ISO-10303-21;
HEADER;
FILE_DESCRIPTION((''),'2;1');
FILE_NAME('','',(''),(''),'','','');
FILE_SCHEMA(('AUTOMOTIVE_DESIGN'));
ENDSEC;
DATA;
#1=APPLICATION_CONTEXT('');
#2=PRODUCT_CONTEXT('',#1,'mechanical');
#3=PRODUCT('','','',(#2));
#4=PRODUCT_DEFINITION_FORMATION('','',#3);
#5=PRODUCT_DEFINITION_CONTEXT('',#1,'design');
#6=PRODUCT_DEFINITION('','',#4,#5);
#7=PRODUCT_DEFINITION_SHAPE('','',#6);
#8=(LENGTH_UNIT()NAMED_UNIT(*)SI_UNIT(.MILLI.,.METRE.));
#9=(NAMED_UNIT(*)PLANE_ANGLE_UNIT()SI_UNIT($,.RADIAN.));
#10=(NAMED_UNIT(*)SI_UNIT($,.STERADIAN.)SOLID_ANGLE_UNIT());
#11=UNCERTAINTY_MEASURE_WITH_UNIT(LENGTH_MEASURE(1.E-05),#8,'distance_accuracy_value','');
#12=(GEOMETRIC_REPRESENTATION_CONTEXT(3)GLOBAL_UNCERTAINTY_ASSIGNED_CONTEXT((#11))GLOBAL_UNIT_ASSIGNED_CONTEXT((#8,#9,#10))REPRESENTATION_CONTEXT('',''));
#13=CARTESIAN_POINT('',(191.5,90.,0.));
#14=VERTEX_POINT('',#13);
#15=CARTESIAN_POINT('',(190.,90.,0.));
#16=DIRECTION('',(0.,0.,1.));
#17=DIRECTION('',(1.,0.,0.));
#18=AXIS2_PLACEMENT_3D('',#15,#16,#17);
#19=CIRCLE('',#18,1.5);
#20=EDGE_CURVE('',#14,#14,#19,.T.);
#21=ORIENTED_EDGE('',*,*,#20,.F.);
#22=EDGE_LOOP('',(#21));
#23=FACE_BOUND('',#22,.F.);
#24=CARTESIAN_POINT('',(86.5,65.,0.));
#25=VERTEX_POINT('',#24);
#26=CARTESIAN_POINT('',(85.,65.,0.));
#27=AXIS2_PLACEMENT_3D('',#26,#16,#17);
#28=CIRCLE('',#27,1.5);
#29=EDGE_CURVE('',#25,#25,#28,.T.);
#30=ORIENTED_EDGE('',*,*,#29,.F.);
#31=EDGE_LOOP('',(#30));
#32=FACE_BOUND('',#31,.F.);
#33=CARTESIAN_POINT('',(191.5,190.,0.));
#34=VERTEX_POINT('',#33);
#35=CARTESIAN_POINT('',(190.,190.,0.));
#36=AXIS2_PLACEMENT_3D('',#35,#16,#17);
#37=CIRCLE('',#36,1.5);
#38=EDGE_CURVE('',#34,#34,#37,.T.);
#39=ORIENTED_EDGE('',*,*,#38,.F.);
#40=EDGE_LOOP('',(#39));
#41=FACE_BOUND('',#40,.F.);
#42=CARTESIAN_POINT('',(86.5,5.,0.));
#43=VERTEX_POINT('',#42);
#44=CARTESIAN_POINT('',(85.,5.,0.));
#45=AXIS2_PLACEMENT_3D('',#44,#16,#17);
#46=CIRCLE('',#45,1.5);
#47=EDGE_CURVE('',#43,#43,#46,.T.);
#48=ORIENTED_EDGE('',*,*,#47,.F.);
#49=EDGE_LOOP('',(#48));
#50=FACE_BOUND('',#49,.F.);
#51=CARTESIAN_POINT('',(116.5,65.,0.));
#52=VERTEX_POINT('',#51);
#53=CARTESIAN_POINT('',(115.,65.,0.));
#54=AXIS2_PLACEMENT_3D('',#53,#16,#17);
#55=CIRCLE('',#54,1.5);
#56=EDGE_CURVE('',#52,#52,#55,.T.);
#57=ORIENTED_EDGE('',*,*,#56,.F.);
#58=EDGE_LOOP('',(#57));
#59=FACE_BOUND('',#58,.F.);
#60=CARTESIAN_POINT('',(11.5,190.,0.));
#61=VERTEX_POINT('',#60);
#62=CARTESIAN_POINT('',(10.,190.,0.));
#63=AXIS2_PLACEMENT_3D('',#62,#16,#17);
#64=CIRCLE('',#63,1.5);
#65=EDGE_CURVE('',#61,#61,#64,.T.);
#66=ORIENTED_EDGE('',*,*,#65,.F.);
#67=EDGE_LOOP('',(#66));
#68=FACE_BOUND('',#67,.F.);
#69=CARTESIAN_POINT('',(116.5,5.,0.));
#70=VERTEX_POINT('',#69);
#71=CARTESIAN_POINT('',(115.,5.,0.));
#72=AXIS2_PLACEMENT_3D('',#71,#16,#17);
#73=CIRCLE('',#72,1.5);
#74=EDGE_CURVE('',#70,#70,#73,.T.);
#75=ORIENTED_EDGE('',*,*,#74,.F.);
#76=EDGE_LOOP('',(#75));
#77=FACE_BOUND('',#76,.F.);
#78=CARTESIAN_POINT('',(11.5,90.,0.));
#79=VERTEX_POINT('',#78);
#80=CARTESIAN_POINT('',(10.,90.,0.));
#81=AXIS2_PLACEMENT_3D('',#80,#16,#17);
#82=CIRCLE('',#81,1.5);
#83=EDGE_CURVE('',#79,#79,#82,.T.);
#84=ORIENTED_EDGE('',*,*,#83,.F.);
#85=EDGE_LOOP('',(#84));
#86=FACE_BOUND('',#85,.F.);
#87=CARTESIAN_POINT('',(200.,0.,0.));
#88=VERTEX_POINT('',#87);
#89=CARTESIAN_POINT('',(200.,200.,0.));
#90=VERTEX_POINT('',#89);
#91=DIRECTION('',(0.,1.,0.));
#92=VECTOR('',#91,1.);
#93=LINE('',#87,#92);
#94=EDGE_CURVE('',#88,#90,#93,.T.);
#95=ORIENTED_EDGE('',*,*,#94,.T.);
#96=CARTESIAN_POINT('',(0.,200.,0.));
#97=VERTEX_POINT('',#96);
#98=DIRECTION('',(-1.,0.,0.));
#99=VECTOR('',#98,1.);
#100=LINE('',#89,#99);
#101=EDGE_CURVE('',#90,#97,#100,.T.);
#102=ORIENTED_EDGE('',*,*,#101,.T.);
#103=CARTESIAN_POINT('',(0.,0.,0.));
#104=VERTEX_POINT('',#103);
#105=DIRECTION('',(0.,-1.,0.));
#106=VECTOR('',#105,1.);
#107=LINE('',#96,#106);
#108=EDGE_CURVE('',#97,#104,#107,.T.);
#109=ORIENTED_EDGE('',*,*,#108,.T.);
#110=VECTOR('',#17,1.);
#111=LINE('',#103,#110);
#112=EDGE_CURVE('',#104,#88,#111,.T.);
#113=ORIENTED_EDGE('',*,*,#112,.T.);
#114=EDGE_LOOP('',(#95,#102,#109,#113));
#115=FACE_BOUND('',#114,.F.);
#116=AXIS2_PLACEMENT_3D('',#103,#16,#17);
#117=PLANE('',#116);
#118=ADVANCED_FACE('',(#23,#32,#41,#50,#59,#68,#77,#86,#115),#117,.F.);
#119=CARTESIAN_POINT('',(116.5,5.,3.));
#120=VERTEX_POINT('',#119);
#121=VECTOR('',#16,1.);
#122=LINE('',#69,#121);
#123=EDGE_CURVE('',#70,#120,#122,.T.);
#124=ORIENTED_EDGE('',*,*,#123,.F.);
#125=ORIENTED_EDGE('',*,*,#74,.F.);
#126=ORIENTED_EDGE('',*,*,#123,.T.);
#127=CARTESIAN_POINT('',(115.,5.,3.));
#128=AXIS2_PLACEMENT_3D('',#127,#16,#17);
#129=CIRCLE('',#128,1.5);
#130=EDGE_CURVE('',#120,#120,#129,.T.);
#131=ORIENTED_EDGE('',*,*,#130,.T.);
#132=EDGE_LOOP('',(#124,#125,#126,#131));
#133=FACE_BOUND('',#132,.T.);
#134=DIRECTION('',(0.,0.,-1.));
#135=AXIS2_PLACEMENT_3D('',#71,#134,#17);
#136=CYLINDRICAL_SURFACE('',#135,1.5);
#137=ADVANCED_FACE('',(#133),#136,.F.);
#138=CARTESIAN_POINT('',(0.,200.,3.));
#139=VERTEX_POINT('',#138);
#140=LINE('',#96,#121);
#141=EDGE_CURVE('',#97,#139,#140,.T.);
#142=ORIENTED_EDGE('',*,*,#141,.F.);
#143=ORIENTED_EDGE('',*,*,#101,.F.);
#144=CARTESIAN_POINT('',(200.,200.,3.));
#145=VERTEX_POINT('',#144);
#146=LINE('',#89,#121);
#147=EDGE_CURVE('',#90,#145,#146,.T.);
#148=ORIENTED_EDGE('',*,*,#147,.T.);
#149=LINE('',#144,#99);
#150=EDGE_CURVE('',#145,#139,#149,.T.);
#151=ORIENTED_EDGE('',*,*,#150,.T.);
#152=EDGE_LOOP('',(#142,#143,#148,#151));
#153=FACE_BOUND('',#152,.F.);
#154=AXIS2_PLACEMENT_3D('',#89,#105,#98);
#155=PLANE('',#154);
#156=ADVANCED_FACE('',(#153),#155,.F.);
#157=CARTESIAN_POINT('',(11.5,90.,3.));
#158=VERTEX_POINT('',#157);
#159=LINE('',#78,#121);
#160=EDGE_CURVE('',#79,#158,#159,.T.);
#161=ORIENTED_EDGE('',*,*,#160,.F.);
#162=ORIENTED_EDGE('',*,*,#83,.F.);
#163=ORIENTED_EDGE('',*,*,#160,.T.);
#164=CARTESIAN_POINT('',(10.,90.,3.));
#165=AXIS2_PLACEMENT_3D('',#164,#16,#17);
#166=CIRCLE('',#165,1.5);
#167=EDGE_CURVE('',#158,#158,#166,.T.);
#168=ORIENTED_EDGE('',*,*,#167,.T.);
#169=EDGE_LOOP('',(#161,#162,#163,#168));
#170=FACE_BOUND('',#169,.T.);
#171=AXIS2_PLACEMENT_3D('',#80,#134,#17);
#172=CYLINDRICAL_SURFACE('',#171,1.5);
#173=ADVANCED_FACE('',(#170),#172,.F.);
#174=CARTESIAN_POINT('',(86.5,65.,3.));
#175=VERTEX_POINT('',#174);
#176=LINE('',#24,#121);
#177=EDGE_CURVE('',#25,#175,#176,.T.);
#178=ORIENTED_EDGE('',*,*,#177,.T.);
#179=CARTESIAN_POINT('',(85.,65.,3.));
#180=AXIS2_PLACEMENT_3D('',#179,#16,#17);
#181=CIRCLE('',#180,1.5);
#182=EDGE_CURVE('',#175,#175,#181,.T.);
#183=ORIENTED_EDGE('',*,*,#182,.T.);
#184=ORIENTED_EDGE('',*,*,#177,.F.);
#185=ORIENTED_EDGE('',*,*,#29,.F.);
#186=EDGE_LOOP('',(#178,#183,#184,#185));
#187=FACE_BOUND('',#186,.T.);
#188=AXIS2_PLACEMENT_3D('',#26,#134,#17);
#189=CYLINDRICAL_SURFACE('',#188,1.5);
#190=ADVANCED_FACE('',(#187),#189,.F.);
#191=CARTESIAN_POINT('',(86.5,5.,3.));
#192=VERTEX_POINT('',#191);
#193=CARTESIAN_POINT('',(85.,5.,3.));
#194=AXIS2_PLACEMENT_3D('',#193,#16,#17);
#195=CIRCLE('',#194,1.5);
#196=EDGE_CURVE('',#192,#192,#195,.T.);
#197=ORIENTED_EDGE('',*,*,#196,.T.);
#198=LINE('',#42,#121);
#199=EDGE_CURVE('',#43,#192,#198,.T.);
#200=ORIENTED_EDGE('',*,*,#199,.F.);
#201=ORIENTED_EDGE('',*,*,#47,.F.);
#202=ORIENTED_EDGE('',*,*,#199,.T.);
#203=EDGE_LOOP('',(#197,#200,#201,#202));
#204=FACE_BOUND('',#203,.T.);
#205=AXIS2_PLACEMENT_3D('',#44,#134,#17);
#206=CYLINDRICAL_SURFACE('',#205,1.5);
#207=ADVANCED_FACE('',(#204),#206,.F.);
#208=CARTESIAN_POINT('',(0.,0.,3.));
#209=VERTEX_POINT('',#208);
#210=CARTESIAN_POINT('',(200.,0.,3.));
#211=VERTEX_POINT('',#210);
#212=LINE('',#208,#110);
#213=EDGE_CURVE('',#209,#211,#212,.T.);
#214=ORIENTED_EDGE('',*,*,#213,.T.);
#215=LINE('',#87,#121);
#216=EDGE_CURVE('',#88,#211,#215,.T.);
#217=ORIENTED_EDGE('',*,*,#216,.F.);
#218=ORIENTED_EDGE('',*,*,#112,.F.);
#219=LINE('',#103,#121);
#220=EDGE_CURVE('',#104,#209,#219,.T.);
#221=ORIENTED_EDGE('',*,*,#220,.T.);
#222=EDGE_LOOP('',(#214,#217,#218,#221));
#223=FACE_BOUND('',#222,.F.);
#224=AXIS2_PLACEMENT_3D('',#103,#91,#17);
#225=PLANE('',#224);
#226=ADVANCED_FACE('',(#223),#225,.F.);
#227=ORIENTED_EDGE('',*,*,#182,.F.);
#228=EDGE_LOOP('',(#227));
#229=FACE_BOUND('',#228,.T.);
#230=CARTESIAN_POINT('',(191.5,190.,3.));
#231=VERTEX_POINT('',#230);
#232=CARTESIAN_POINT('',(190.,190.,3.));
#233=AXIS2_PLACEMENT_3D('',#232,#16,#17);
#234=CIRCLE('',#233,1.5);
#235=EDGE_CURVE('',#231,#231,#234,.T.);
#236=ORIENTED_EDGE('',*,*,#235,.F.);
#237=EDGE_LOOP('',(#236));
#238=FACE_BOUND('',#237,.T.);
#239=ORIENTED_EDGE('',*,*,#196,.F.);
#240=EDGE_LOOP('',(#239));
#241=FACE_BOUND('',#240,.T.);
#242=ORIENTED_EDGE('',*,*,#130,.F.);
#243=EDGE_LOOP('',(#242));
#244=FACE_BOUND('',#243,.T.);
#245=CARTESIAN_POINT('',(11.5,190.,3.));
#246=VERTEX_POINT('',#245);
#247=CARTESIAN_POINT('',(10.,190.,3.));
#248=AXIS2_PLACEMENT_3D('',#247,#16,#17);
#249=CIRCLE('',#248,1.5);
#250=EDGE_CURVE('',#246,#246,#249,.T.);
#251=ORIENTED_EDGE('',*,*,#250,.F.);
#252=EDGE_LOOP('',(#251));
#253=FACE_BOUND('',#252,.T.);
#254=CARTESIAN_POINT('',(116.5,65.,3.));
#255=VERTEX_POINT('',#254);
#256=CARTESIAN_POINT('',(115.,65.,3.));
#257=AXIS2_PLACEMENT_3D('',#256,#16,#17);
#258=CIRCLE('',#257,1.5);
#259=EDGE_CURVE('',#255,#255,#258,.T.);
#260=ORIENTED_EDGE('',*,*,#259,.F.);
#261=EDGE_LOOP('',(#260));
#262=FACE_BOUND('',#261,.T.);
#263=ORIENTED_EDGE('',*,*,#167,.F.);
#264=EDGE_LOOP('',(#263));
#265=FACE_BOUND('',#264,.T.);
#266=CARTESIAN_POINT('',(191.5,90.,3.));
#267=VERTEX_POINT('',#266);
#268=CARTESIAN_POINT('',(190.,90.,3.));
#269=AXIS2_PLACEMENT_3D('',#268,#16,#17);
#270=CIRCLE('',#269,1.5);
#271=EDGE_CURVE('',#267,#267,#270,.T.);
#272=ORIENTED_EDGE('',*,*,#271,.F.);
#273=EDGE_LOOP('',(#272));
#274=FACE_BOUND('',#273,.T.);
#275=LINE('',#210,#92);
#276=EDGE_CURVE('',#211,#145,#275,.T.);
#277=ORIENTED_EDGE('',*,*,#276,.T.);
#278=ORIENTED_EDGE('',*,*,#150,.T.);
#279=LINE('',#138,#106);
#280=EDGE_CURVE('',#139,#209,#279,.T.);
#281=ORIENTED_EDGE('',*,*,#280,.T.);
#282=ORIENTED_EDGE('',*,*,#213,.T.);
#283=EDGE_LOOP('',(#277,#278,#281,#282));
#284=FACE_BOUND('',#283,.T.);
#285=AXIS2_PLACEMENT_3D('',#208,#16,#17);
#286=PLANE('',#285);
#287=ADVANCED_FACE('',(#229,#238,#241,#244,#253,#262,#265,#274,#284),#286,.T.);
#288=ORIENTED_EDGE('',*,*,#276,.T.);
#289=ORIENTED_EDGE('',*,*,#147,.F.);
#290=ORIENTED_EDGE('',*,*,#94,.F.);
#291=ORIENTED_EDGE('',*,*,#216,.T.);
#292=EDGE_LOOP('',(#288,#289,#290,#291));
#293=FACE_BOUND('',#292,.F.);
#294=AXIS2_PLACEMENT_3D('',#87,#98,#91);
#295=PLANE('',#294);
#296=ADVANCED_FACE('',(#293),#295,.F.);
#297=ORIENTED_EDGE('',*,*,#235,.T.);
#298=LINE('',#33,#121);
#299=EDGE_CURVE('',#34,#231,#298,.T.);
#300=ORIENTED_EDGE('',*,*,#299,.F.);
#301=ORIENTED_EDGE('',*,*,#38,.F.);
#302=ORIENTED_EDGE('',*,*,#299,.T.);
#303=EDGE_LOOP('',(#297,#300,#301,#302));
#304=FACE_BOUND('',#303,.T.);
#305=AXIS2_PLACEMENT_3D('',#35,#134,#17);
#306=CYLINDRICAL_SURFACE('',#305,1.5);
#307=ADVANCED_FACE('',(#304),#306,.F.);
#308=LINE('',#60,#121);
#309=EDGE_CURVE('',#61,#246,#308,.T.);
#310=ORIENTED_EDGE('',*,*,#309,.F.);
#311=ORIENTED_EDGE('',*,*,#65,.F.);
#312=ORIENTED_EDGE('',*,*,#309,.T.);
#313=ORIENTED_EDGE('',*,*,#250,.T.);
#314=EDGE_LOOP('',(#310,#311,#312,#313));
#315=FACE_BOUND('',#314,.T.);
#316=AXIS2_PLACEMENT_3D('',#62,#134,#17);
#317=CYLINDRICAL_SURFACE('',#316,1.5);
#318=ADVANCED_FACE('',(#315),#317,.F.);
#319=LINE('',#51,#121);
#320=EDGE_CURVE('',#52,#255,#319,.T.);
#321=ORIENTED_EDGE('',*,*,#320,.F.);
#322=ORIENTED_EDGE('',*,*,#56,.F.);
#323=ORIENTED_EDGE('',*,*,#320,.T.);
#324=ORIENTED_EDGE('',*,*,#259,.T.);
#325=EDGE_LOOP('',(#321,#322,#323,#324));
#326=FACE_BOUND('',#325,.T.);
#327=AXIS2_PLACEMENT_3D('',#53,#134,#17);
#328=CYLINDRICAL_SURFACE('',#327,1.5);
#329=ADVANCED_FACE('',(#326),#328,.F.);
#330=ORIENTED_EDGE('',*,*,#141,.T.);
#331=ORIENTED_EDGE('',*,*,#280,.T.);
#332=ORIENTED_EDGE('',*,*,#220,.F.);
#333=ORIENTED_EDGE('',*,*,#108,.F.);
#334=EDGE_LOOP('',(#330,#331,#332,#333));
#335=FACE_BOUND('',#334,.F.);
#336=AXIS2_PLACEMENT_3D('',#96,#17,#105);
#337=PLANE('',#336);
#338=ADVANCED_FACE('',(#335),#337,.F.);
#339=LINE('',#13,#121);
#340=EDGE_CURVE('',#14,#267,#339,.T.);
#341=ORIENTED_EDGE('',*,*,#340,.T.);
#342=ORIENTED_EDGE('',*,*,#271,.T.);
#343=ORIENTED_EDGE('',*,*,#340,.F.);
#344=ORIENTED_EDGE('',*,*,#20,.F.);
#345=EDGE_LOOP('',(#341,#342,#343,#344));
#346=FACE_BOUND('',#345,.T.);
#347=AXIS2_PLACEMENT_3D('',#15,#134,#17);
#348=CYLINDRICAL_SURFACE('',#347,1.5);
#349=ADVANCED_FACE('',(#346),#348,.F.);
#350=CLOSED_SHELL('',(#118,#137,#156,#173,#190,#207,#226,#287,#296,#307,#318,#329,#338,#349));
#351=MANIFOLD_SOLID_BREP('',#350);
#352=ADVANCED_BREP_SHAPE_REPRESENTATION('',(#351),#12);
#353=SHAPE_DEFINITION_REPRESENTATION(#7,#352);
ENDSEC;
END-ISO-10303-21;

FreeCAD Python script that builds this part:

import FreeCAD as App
import Part
import Sketcher

V = App.Vector
Q = App.Units.Quantity

doc = App.newDocument("Part")
body = doc.addObject("PartDesign::Body", "Body")

# Sketch on XY plane
sketch1 = body.newObject("Sketcher::SketchObject", "Sketch")
sketch1.AttachmentSupport = (doc.getObject("XY_Plane"), [""])
sketch1.MapMode = "FlatFace"
sketch1.addGeometry([
    Part.LineSegment(V(0, 200, 0), V(0, 0, 0)),  # 0
    Part.LineSegment(V(0, 0, 0), V(200, 0, 0)),  # 1
    Part.LineSegment(V(200, 0, 0), V(200, 200, 0)),  # 2
    Part.LineSegment(V(200, 200, 0), V(0, 200, 0)),  # 3
    Part.Circle(V(85, 5, 0), V(0, 0, 1), 1.5),  # 4
    Part.Circle(V(10, 90, 0), V(0, 0, 1), 1.5),  # 5
    Part.Circle(V(85, 65, 0), V(0, 0, 1), 1.5),  # 6
    Part.Circle(V(115, 5, 0), V(0, 0, 1), 1.5),  # 7
    Part.Circle(V(115, 65, 0), V(0, 0, 1), 1.5),  # 8
    Part.Circle(V(190, 90, 0), V(0, 0, 1), 1.5),  # 9
    Part.Circle(V(10, 190, 0), V(0, 0, 1), 1.5),  # 10
    Part.Circle(V(190, 190, 0), V(0, 0, 1), 1.5),  # 11
], False)
sketch1.addConstraint([
    Sketcher.Constraint("Coincident", 0, 2, 1, 1),
    Sketcher.Constraint("Coincident", 1, 2, 2, 1),
    Sketcher.Constraint("Coincident", 2, 2, 3, 1),
    Sketcher.Constraint("Coincident", 3, 2, 0, 1),
    Sketcher.Constraint("Vertical", 0),
    Sketcher.Constraint("Horizontal", 1),
    Sketcher.Constraint("Vertical", 2),
    Sketcher.Constraint("Horizontal", 3),
    Sketcher.Constraint("Coincident", 0, 2, -1, 1),
    Sketcher.Constraint("Equal", 4, 5),
    Sketcher.Constraint("Equal", 5, 6),
    Sketcher.Constraint("Equal", 6, 7),
    Sketcher.Constraint("Equal", 7, 8),
    Sketcher.Constraint("Equal", 8, 9),
    Sketcher.Constraint("Equal", 9, 10),
    Sketcher.Constraint("Equal", 10, 11),
    Sketcher.Constraint("Horizontal", 4, 3, 7, 3),
    Sketcher.Constraint("Horizontal", 6, 3, 8, 3),
    Sketcher.Constraint("Horizontal", 5, 3, 9, 3),
    Sketcher.Constraint("Horizontal", 10, 3, 11, 3),
    Sketcher.Constraint("Vertical", 4, 3, 6, 3),
    Sketcher.Constraint("Vertical", 7, 3, 8, 3),
    Sketcher.Constraint("Vertical", 5, 3, 10, 3),
    Sketcher.Constraint("Vertical", 9, 3, 11, 3),
    Sketcher.Constraint("Equal", 3, 0),
    Sketcher.Constraint("Diameter", 4, Q("3 mm")),
    Sketcher.Constraint("DistanceX", 1, 1, 1, 2, Q("200 mm")),
    Sketcher.Constraint("DistanceX", -1, 1, 4, 3, Q("85 mm")),
    Sketcher.Constraint("DistanceY", -1, 1, 4, 3, Q("5 mm")),
    Sketcher.Constraint("DistanceX", -1, 1, 5, 3, Q("10 mm")),
    Sketcher.Constraint("DistanceY", 4, 3, 5, 3, Q("85 mm")),
    Sketcher.Constraint("DistanceY", 4, 3, 6, 3, Q("60 mm")),
    Sketcher.Constraint("DistanceX", 4, 3, 7, 3, Q("30 mm")),
    Sketcher.Constraint("DistanceY", 5, 3, 10, 3, Q("100 mm")),
    Sketcher.Constraint("DistanceX", 9, 3, 1, 2, Q("10 mm")),
])
pad1 = body.newObject("PartDesign::Pad", "Pad")
pad1.Profile = sketch1
pad1.Length = 3

doc.recompute()
